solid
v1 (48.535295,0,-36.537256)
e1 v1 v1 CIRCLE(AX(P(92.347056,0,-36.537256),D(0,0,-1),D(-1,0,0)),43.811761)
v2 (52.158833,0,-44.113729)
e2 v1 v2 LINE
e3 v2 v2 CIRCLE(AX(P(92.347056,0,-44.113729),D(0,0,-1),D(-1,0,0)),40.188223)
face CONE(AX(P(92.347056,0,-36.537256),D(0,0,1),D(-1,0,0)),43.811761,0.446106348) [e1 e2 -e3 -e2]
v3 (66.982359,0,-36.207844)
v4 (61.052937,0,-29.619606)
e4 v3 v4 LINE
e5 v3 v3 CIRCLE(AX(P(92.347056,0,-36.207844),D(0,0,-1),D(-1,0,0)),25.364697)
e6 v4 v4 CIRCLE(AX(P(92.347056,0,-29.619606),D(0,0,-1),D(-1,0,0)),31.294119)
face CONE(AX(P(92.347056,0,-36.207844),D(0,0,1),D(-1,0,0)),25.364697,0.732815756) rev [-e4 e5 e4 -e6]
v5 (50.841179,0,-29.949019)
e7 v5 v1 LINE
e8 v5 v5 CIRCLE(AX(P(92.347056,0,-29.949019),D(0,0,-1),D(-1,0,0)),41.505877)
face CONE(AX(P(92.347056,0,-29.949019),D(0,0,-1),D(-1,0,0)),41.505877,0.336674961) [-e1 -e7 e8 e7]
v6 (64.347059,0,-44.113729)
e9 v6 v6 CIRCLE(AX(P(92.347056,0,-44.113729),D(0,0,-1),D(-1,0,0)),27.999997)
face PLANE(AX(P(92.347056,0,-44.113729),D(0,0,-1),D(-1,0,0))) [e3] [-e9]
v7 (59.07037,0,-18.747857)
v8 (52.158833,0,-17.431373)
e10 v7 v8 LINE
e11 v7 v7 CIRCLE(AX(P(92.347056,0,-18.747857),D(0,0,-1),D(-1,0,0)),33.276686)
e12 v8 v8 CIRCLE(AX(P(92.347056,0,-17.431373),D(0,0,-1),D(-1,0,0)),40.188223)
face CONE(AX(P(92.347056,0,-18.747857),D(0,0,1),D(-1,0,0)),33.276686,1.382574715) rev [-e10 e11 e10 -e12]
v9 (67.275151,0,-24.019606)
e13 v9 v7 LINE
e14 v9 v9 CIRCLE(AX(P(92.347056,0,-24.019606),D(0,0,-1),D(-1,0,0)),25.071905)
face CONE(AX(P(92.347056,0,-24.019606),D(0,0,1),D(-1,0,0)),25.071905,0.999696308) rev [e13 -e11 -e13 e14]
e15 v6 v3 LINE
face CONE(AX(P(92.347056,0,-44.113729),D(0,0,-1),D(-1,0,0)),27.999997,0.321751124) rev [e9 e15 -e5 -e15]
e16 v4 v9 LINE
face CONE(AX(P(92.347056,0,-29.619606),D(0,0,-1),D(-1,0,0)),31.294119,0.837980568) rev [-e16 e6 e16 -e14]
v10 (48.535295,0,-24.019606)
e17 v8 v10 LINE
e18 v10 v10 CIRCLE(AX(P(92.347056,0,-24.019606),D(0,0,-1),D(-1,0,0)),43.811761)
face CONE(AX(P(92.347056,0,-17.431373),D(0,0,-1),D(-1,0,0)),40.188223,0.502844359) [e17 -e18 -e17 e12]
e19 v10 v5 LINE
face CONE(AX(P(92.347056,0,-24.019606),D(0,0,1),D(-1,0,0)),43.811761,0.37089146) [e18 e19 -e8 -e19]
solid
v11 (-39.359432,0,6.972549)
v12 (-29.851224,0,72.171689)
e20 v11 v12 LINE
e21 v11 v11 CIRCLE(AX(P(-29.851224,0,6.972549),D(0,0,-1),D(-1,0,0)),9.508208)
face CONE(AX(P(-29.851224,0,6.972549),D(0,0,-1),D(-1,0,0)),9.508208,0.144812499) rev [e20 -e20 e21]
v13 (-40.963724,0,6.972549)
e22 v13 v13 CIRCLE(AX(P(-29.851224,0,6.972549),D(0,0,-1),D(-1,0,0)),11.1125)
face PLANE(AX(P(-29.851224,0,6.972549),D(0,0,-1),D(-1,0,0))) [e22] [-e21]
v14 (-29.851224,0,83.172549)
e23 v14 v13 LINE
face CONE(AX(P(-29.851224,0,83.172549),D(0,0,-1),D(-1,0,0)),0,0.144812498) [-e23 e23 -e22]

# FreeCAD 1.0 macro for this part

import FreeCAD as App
import Part
import Sketcher
from FreeCAD import Vector
Q = App.Units.Quantity


def add_polygon(sketch, points):
    """Adds a closed chain of lines whose ends are joined by coincident constraints."""
    first, n = sketch.GeometryCount, len(points)
    for a, b in zip(points, points[1:] + points[:1]):
        sketch.addGeometry(Part.LineSegment(App.Vector(*a, 0), App.Vector(*b, 0)), False)
    for i in range(n):
        sketch.addConstraint(Sketcher.Constraint("Coincident", first + i, 2, first + (i + 1) % n, 1))

doc = App.newDocument("Part")
params = doc.addObject("Spreadsheet::Sheet", "Params")
for row, (alias, value) in enumerate([
    ("sketch1_height", "3 in"),
    ("revolution_angle", "360 deg"),
    ("sketch2_length", "0.277 in"),
    ("revolution2_angle", "360 deg"),
], start=1):
    params.set(f"A{row}", alias)
    params.set(f"B{row}", "=" + value)
    params.setAlias(f"B{row}", alias)

body = doc.addObject("PartDesign::Body", "Body")

sketch1 = body.newObject("Sketcher::SketchObject", "Sketch")
sketch1.AttachmentSupport = (doc.getObject("XZ_Plane"), [""])
sketch1.MapMode = "FlatFace"
add_polygon(sketch1, [(-29.9, 83.2), (-41, 7), (-39.4, 7), (-29.9, 72.2)])
sketch1.addGeometry(Part.LineSegment(Vector(-29.9, 83.2, 0), Vector(-29.9, 7, 0)), True)
sketch1.addConstraint(Sketcher.Constraint("Horizontal", 1))
sketch1.addConstraint(Sketcher.Constraint("Vertical", 3))
sketch1.addConstraint(Sketcher.Constraint("Vertical", 4))
sketch1.addConstraint(Sketcher.Constraint("Coincident", 4, 1, 3, 2))
sketch1.addConstraint(Sketcher.Constraint("Parallel", 0, 2))
sketch1.addConstraint(Sketcher.Constraint("Horizontal", 1, 2, 4, 2))
sketch1.addConstraint(Sketcher.Constraint("DistanceY", 4, 2, 4, 1, Q("3 in")))
sketch1.addConstraint(Sketcher.Constraint("DistanceX", 0, 2, 2, 2, Q("0.4375 in")))
sketch1.addConstraint(Sketcher.Constraint("Distance", 2, Q("65.888799 mm")))
sketch1.addConstraint(Sketcher.Constraint("DistanceY", -1, 1, 0, 2, Q("6.972549 mm")))
sketch1.addConstraint(Sketcher.Constraint("DistanceX", 1, 2, -1, 1, Q("39.359432 mm")))
sketch1.setExpression("Constraints[10]", "Params.sketch1_height")
revolution = body.newObject("PartDesign::Revolution", "Revolution")
revolution.Profile = sketch1
revolution.ReferenceAxis = (sketch1, ["Axis0"])
revolution.setExpression("Angle", "Params.revolution_angle")
body2 = doc.addObject("PartDesign::Body", "Body001")

sketch2 = body2.newObject("Sketcher::SketchObject", "Sketch001")
sketch2.AttachmentSupport = (doc.getObject("XZ_Plane001"), [""])
sketch2.MapMode = "FlatFace"
add_polygon(sketch2, [(59, -19), (52, -17), (49, -24), (51, -30), (49, -37), (52, -44), (64, -44), (67, -36), (61, -30), (67, -24)])
sketch2.addGeometry(Part.LineSegment(Vector(92, -17, 0), Vector(92, -44, 0)), True)
sketch2.addConstraint(Sketcher.Constraint("Horizontal", 5))
sketch2.addConstraint(Sketcher.Constraint("Vertical", 10))
sketch2.addConstraint(Sketcher.Constraint("Perpendicular", 7, 8))
sketch2.addConstraint(Sketcher.Constraint("Horizontal", 1, 2, 8, 2))
sketch2.addConstraint(Sketcher.Constraint("Horizontal", 0, 2, 10, 1))
sketch2.addConstraint(Sketcher.Constraint("Horizontal", 5, 2, 10, 2))
sketch2.addConstraint(Sketcher.Constraint("Vertical", 1, 2, 3, 2))
sketch2.addConstraint(Sketcher.Constraint("Vertical", 0, 2, 4, 2))
sketch2.addConstraint(Sketcher.Constraint("Angle", 4, Q("-64.439989 deg")))
sketch2.addConstraint(Sketcher.Constraint("Distance", 0, Q("0.277 in")))
sketch2.addConstraint(Sketcher.Constraint("DistanceY", 3, 2, 0, 2, Q("0.7522001 in")))
sketch2.addConstraint(Sketcher.Constraint("Distance", 2, Q("6.362 mm")))
sketch2.addConstraint(Sketcher.Constraint("DistanceX", 5, 2, 6, 2, Q("2.6353 mm")))
sketch2.addConstraint(Sketcher.Constraint("DistanceY", 7, 2, 1, 2, Q("5.6 mm")))
sketch2.addConstraint(Sketcher.Constraint("Distance", 4, Q("8.398391 mm")))
sketch2.addConstraint(Sketcher.Constraint("DistanceX", 5, 1, 5, 2, Q("12.188226 mm")))
sketch2.addConstraint(Sketcher.Constraint("DistanceX", -1, 1, 2, 2, Q("50.841179 mm")))
sketch2.addConstraint(Sketcher.Constraint("DistanceY", 2, 2, -1, 1, Q("29.949019 mm")))
sketch2.addConstraint(Sketcher.Constraint("DistanceY", 4, 2, -1, 1, Q("44.113729 mm")))
sketch2.addConstraint(Sketcher.Constraint("DistanceX", -1, 1, 5, 2, Q("64.347059 mm")))
sketch2.addConstraint(Sketcher.Constraint("DistanceX", -1, 1, 8, 2, Q("67.275151 mm")))
sketch2.addConstraint(Sketcher.Constraint("DistanceX", -1, 1, 9, 2, Q("59.07037 mm")))
sketch2.addConstraint(Sketcher.Constraint("DistanceY", 3, 2, 6, 2, Q("0.329412 mm")))
sketch2.addConstraint(Sketcher.Constraint("DistanceX", 7, 2, 10, 1, Q("31.294119 mm")))
sketch2.setExpression("Constraints[19]", "Params.sketch2_length")
revolution2 = body2.newObject("PartDesign::Revolution", "Revolution001")
revolution2.Profile = sketch2
revolution2.ReferenceAxis = (sketch2, ["Axis0"])
revolution2.setExpression("Angle", "Params.revolution2_angle")

doc.recompute()
